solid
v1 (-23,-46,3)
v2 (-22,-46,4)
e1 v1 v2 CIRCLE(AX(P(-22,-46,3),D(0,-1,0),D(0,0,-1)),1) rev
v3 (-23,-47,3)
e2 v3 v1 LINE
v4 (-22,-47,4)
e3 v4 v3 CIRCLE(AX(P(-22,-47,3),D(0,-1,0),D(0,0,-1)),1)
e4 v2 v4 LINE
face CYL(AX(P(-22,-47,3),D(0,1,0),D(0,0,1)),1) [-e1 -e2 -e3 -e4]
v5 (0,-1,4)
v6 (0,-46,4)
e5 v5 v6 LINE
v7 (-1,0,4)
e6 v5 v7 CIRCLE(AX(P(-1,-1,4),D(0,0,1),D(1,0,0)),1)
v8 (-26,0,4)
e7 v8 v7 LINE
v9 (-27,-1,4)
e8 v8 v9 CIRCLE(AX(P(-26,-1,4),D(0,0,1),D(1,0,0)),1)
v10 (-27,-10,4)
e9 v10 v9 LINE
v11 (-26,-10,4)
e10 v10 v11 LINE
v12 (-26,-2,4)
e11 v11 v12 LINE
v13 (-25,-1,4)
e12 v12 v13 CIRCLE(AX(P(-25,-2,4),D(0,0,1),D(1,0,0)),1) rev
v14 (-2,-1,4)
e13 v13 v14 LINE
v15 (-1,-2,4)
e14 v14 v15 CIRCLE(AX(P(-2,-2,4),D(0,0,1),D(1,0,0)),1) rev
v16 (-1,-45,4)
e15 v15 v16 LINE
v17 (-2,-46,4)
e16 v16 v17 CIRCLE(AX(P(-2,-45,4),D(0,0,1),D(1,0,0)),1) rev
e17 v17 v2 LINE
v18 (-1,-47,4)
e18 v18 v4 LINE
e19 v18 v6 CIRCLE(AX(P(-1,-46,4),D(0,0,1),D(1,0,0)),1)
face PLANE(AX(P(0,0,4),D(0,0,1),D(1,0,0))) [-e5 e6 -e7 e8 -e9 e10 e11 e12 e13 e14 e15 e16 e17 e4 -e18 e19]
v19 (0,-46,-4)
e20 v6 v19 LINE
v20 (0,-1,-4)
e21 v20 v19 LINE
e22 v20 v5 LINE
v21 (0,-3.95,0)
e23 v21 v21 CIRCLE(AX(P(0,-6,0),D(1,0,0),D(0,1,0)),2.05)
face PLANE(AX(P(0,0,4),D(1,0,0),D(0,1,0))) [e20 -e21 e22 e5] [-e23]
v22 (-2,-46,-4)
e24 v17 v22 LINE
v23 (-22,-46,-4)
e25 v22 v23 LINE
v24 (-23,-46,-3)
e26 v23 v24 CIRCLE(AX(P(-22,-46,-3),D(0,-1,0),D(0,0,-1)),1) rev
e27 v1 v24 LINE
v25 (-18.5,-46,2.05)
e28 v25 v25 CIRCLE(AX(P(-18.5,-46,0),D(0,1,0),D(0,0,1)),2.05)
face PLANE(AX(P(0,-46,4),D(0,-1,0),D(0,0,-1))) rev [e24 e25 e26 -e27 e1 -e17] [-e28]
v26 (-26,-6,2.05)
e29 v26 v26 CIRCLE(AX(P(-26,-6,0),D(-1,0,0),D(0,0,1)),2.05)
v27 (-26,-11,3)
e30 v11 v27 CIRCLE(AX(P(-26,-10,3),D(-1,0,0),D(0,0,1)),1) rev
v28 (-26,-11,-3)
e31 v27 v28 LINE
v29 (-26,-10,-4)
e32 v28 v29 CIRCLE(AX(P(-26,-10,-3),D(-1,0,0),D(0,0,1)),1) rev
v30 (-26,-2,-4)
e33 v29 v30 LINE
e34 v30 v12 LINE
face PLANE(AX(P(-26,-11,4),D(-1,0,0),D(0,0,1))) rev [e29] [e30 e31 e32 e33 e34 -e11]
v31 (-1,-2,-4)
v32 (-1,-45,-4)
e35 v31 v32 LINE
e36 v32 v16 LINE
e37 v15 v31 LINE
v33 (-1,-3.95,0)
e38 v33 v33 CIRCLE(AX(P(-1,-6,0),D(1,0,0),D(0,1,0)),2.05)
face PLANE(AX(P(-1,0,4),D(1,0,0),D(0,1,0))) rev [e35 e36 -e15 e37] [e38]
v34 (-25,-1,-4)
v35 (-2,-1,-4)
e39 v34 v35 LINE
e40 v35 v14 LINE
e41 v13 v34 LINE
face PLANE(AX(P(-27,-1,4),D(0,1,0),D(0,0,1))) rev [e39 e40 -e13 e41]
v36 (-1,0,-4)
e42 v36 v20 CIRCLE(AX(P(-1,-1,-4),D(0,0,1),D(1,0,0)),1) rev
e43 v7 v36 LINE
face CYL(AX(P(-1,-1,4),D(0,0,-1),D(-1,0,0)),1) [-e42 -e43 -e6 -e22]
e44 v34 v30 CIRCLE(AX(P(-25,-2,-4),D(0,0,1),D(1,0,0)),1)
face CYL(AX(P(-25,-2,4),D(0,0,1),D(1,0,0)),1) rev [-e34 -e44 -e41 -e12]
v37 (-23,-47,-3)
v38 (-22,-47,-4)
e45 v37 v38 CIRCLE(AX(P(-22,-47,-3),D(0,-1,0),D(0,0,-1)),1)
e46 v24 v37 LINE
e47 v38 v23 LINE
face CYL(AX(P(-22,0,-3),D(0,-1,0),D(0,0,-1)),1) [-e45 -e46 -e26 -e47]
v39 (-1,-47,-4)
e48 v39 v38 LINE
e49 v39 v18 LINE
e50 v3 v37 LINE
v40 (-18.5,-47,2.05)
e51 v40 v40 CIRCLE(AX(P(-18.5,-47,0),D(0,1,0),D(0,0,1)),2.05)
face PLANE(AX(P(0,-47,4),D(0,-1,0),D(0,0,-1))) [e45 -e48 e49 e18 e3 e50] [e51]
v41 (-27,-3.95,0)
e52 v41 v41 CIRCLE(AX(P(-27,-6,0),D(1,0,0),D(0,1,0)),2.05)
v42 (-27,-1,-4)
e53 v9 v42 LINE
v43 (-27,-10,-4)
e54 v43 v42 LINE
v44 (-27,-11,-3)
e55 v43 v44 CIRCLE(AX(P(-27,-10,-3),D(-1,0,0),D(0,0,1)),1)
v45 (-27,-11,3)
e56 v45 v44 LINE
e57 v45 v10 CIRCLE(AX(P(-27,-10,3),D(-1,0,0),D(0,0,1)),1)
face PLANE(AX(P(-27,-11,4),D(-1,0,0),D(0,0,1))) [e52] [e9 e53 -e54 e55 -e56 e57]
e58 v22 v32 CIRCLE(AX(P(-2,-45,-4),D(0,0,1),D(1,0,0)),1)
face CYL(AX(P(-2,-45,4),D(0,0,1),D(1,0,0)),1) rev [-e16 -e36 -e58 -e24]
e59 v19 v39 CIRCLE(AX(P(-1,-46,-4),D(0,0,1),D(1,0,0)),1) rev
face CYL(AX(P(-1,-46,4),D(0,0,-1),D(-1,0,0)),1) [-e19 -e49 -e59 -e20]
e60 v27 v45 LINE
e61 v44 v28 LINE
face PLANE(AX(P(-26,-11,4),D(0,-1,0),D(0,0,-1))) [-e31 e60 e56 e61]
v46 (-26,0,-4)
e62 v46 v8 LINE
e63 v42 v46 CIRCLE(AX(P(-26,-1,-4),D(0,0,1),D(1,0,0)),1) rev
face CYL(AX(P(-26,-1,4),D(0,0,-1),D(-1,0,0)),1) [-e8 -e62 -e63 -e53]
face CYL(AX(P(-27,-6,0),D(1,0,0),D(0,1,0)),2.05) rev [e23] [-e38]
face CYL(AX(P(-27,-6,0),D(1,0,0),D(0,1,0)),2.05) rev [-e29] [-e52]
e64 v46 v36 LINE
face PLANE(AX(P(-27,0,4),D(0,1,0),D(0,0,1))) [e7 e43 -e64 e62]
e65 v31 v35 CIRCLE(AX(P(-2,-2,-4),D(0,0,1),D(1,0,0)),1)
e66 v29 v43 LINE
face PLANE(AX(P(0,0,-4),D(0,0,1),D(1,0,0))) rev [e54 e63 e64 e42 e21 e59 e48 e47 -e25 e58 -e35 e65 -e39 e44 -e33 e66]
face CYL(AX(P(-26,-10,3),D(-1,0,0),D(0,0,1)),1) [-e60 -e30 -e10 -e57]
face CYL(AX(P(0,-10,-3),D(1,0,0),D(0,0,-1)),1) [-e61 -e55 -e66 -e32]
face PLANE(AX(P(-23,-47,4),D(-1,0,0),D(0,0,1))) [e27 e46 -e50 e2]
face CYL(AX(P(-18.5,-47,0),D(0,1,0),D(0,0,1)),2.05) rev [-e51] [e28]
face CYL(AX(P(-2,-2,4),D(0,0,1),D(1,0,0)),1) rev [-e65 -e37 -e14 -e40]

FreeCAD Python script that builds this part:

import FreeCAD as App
import Part
import Sketcher

V = App.Vector
Q = App.Units.Quantity


def edges_at(feature, points):
    """Names of the edges that pass closest to the given points."""
    edges = feature.Shape.Edges
    near = lambda p: min(range(len(edges)), key=lambda i: edges[i].distToShape(Part.Vertex(*p))[0])
    return sorted({f"Edge{near(p) + 1}" for p in points})

doc = App.newDocument("Part")
body = doc.addObject("PartDesign::Body", "Body")

# Sketch on XY plane
sketch1 = doc.addObject("Sketcher::SketchObject", "Sketch")
body.addObject(sketch1)
sketch1.AttachmentSupport = (doc.XY_Plane, [""])
sketch1.MapMode = "FlatFace"
sketch1.addGeometry([
    Part.LineSegment(V(-27, 0, 0), V(-27, -11, 0)),  # 0
    Part.LineSegment(V(-27, -11, 0), V(-26, -11, 0)),  # 1
    Part.LineSegment(V(-26, -11, 0), V(-26, -1, 0)),  # 2
    Part.LineSegment(V(-26, -1, 0), V(-1, -1, 0)),  # 3
    Part.LineSegment(V(-1, -1, 0), V(-1, -46, 0)),  # 4
    Part.LineSegment(V(-1, -46, 0), V(-23, -46, 0)),  # 5
    Part.LineSegment(V(-23, -46, 0), V(-23, -47, 0)),  # 6
    Part.LineSegment(V(-23, -47, 0), V(0, -47, 0)),  # 7
    Part.LineSegment(V(0, -47, 0), V(0, 0, 0)),  # 8
    Part.LineSegment(V(0, 0, 0), V(-27, 0, 0)),  # 9
], False)
sketch1.addConstraint([
    Sketcher.Constraint("Coincident", 0, 2, 1, 1),
    Sketcher.Constraint("Coincident", 1, 2, 2, 1),
    Sketcher.Constraint("Coincident", 2, 2, 3, 1),
    Sketcher.Constraint("Coincident", 3, 2, 4, 1),
    Sketcher.Constraint("Coincident", 4, 2, 5, 1),
    Sketcher.Constraint("Coincident", 5, 2, 6, 1),
    Sketcher.Constraint("Coincident", 6, 2, 7, 1),
    Sketcher.Constraint("Coincident", 7, 2, 8, 1),
    Sketcher.Constraint("Coincident", 8, 2, 9, 1),
    Sketcher.Constraint("Coincident", 9, 2, 0, 1),
    Sketcher.Constraint("Vertical", 0),
    Sketcher.Constraint("Horizontal", 1),
    Sketcher.Constraint("Vertical", 2),
    Sketcher.Constraint("Horizontal", 3),
    Sketcher.Constraint("Vertical", 4),
    Sketcher.Constraint("Horizontal", 5),
    Sketcher.Constraint("Vertical", 6),
    Sketcher.Constraint("Horizontal", 7),
    Sketcher.Constraint("Vertical", 8),
    Sketcher.Constraint("Horizontal", 9),
    Sketcher.Constraint("Coincident", 8, 2, -1, 1),
    Sketcher.Constraint("Equal", 1, 6),
    Sketcher.Constraint("DistanceX", 1, 1, 1, 2, Q("1 mm")),
    Sketcher.Constraint("DistanceX", 3, 1, 3, 2, Q("25 mm")),
    Sketcher.Constraint("DistanceX", 5, 2, 5, 1, Q("22 mm")),
    Sketcher.Constraint("DistanceX", 7, 1, 7, 2, Q("23 mm")),
    Sketcher.Constraint("DistanceY", 0, 2, 0, 1, Q("11 mm")),
    Sketcher.Constraint("DistanceY", 2, 1, 2, 2, Q("10 mm")),
    Sketcher.Constraint("DistanceY", 4, 2, 4, 1, Q("45 mm")),
])
pad1 = doc.addObject("PartDesign::Pad", "Pad")
body.addObject(pad1)
pad1.Profile = sketch1
pad1.Length = 8
pad1.Midplane = True

# Sketch on YZ plane
sketch2 = doc.addObject("Sketcher::SketchObject", "Sketch001")
body.addObject(sketch2)
sketch2.AttachmentSupport = (doc.YZ_Plane, [""])
sketch2.MapMode = "FlatFace"
sketch2.addGeometry(Part.Circle(V(-6, 0, 0), V(0, 0, 1), 2), False)
sketch2.addConstraint([
    Sketcher.Constraint("PointOnObject", 0, 3, -1),
    Sketcher.Constraint("Diameter", 0, Q("4.1 mm")),
    Sketcher.Constraint("DistanceX", 0, 3, -1, 1, Q("6 mm")),
])
pocket1 = doc.addObject("PartDesign::Pocket", "Pocket")
body.addObject(pocket1)
pocket1.Profile = sketch2
pocket1.Type = "ThroughAll"

# Sketch on XZ plane
sketch3 = doc.addObject("Sketcher::SketchObject", "Sketch002")
body.addObject(sketch3)
sketch3.AttachmentSupport = (doc.XZ_Plane, [""])
sketch3.MapMode = "FlatFace"
sketch3.AttachmentOffset = App.Placement(V(0, 0, 46), App.Rotation())
sketch3.addGeometry(Part.Circle(V(-18.5, 0, 0), V(0, 0, 1), 2), False)
sketch3.addConstraint([
    Sketcher.Constraint("PointOnObject", 0, 3, -1),
    Sketcher.Constraint("Diameter", 0, Q("4.1 mm")),
    Sketcher.Constraint("DistanceX", 0, 3, -1, 1, Q("18.5 mm")),
])
pocket2 = doc.addObject("PartDesign::Pocket", "Pocket001")
body.addObject(pocket2)
pocket2.Profile = sketch3
pocket2.Type = "ThroughAll"
pocket2.Reversed = True
doc.recompute()

fillet = doc.addObject("PartDesign::Fillet", "Fillet")
body.addObject(fillet)
fillet.Base = (pocket2, edges_at(pocket2, [
    (-23, -46.5, -4),
    (-26.5, -11, 4),
    (-23, -46.5, 4),
    (-26.5, -11, -4),
]))
fillet.Radius = 1
doc.recompute()

fillet2 = doc.addObject("PartDesign::Fillet", "Fillet001")
body.addObject(fillet2)
fillet2.Base = (fillet, edges_at(fillet, [
    (-1, -46, 0),
    (-1, -1, 0),
    (0, 0, 0),
    (0, -47, 0),
]))
fillet2.Radius = 1
doc.recompute()

fillet3 = doc.addObject("PartDesign::Fillet", "Fillet002")
body.addObject(fillet3)
fillet3.Base = (fillet2, edges_at(fillet2, [(-26, -1, 0), (-27, 0, 0)]))
fillet3.Radius = 1

doc.recompute()
